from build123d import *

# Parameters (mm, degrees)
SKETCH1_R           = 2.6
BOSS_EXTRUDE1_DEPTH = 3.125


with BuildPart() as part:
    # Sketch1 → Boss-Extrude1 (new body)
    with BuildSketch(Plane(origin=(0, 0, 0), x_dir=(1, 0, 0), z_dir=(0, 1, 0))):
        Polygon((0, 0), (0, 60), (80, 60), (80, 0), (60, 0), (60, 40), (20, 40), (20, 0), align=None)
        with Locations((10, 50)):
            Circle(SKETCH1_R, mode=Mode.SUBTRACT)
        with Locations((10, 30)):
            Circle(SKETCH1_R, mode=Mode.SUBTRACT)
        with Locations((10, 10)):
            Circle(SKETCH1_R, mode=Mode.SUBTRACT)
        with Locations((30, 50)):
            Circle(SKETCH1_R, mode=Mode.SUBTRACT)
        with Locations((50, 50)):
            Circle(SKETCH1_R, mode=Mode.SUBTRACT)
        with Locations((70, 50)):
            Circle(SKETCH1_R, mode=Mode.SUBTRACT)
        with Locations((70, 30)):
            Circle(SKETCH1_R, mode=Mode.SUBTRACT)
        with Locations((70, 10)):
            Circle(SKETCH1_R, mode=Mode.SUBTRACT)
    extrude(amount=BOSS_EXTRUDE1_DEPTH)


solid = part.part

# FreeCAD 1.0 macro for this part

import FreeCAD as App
import Part
import Sketcher
from FreeCAD import Vector
Q = App.Units.Quantity

doc = App.newDocument("Part")
body = doc.addObject("PartDesign::Body", "Body")

# Sketch on XZ plane
sketch1 = body.newObject("Sketcher::SketchObject", "Sketch")
sketch1.AttachmentSupport = (doc.getObject("XZ_Plane"), [""])
sketch1.MapMode = "FlatFace"
sketch1.addGeometry([
    Part.LineSegment(Vector(0, -60, 0), Vector(0, 0, 0)),  # 0
    Part.LineSegment(Vector(0, 0, 0), Vector(20, 0, 0)),  # 1
    Part.LineSegment(Vector(20, 0, 0), Vector(20, -40, 0)),  # 2
    Part.LineSegment(Vector(20, -40, 0), Vector(60, -40, 0)),  # 3
    Part.LineSegment(Vector(60, -40, 0), Vector(60, 0, 0)),  # 4
    Part.LineSegment(Vector(60, 0, 0), Vector(80, 0, 0)),  # 5
    Part.LineSegment(Vector(80, 0, 0), Vector(80, -60, 0)),  # 6
    Part.LineSegment(Vector(80, -60, 0), Vector(0, -60, 0)),  # 7
    Part.Circle(Vector(70, -10, 0), Vector(0, 0, 1), 2.6),  # 8
    Part.Circle(Vector(10, -10, 0), Vector(0, 0, 1), 2.6),  # 9
    Part.Circle(Vector(70, -30, 0), Vector(0, 0, 1), 2.6),  # 10
    Part.Circle(Vector(70, -50, 0), Vector(0, 0, 1), 2.6),  # 11
    Part.Circle(Vector(50, -50, 0), Vector(0, 0, 1), 2.6),  # 12
    Part.Circle(Vector(10, -30, 0), Vector(0, 0, 1), 2.6),  # 13
    Part.Circle(Vector(30, -50, 0), Vector(0, 0, 1), 2.6),  # 14
    Part.Circle(Vector(10, -50, 0), Vector(0, 0, 1), 2.6),  # 15
], False)
sketch1.addConstraint([
    Sketcher.Constraint("Coincident", 0, 2, 1, 1),
    Sketcher.Constraint("Coincident", 1, 2, 2, 1),
    Sketcher.Constraint("Coincident", 2, 2, 3, 1),
    Sketcher.Constraint("Coincident", 3, 2, 4, 1),
    Sketcher.Constraint("Coincident", 4, 2, 5, 1),
    Sketcher.Constraint("Coincident", 5, 2, 6, 1),
    Sketcher.Constraint("Coincident", 6, 2, 7, 1),
    Sketcher.Constraint("Coincident", 7, 2, 0, 1),
    Sketcher.Constraint("Vertical", 0),
    Sketcher.Constraint("Horizontal", 1),
    Sketcher.Constraint("Vertical", 2),
    Sketcher.Constraint("Horizontal", 3),
    Sketcher.Constraint("Vertical", 4),
    Sketcher.Constraint("Horizontal", 5),
    Sketcher.Constraint("Vertical", 6),
    Sketcher.Constraint("Horizontal", 7),
    Sketcher.Constraint("Coincident", 0, 2, -1, 1),
    Sketcher.Constraint("Equal", 8, 9),
    Sketcher.Constraint("Equal", 9, 10),
    Sketcher.Constraint("Equal", 10, 11),
    Sketcher.Constraint("Equal", 11, 12),
    Sketcher.Constraint("Equal", 12, 13),
    Sketcher.Constraint("Equal", 13, 14),
    Sketcher.Constraint("Equal", 14, 15),
    Sketcher.Constraint("PointOnObject", 4, 2, -1),
    Sketcher.Constraint("Horizontal", 8, 3, 9, 3),
    Sketcher.Constraint("Horizontal", 11, 3, 12, 3),
    Sketcher.Constraint("Horizontal", 10, 3, 13, 3),
    Sketcher.Constraint("Horizontal", 12, 3, 14, 3),
    Sketcher.Constraint("Horizontal", 14, 3, 15, 3),
    Sketcher.Constraint("Vertical", 8, 3, 10, 3),
    Sketcher.Constraint("Vertical", 10, 3, 11, 3),
    Sketcher.Constraint("Vertical", 9, 3, 13, 3),
    Sketcher.Constraint("Vertical", 13, 3, 15, 3),
    Sketcher.Constraint("Equal", 1, 5),
    Sketcher.Constraint("Equal", 3, 2),
    Sketcher.Constraint("Diameter", 8, Q("5.2 mm")),
    Sketcher.Constraint("DistanceX", 1, 1, 1, 2, Q("20 mm")),
    Sketcher.Constraint("DistanceX", 3, 1, 3, 2, Q("40 mm")),
    Sketcher.Constraint("DistanceY", 0, 1, 0, 2, Q("60 mm")),
    Sketcher.Constraint("DistanceX", -1, 1, 8, 3, Q("70 mm")),
    Sketcher.Constraint("DistanceY", 8, 3, -1, 1, Q("10 mm")),
    Sketcher.Constraint("DistanceX", -1, 1, 9, 3, Q("10 mm")),
    Sketcher.Constraint("DistanceY", 10, 3, -1, 1, Q("30 mm")),
    Sketcher.Constraint("DistanceY", 11, 3, -1, 1, Q("50 mm")),
    Sketcher.Constraint("DistanceX", -1, 1, 12, 3, Q("50 mm")),
    Sketcher.Constraint("DistanceX", -1, 1, 14, 3, Q("30 mm")),
])
pad1 = body.newObject("PartDesign::Pad", "Pad")
pad1.Profile = sketch1
pad1.Length = 3.125
pad1.Reversed = True

doc.recompute()
